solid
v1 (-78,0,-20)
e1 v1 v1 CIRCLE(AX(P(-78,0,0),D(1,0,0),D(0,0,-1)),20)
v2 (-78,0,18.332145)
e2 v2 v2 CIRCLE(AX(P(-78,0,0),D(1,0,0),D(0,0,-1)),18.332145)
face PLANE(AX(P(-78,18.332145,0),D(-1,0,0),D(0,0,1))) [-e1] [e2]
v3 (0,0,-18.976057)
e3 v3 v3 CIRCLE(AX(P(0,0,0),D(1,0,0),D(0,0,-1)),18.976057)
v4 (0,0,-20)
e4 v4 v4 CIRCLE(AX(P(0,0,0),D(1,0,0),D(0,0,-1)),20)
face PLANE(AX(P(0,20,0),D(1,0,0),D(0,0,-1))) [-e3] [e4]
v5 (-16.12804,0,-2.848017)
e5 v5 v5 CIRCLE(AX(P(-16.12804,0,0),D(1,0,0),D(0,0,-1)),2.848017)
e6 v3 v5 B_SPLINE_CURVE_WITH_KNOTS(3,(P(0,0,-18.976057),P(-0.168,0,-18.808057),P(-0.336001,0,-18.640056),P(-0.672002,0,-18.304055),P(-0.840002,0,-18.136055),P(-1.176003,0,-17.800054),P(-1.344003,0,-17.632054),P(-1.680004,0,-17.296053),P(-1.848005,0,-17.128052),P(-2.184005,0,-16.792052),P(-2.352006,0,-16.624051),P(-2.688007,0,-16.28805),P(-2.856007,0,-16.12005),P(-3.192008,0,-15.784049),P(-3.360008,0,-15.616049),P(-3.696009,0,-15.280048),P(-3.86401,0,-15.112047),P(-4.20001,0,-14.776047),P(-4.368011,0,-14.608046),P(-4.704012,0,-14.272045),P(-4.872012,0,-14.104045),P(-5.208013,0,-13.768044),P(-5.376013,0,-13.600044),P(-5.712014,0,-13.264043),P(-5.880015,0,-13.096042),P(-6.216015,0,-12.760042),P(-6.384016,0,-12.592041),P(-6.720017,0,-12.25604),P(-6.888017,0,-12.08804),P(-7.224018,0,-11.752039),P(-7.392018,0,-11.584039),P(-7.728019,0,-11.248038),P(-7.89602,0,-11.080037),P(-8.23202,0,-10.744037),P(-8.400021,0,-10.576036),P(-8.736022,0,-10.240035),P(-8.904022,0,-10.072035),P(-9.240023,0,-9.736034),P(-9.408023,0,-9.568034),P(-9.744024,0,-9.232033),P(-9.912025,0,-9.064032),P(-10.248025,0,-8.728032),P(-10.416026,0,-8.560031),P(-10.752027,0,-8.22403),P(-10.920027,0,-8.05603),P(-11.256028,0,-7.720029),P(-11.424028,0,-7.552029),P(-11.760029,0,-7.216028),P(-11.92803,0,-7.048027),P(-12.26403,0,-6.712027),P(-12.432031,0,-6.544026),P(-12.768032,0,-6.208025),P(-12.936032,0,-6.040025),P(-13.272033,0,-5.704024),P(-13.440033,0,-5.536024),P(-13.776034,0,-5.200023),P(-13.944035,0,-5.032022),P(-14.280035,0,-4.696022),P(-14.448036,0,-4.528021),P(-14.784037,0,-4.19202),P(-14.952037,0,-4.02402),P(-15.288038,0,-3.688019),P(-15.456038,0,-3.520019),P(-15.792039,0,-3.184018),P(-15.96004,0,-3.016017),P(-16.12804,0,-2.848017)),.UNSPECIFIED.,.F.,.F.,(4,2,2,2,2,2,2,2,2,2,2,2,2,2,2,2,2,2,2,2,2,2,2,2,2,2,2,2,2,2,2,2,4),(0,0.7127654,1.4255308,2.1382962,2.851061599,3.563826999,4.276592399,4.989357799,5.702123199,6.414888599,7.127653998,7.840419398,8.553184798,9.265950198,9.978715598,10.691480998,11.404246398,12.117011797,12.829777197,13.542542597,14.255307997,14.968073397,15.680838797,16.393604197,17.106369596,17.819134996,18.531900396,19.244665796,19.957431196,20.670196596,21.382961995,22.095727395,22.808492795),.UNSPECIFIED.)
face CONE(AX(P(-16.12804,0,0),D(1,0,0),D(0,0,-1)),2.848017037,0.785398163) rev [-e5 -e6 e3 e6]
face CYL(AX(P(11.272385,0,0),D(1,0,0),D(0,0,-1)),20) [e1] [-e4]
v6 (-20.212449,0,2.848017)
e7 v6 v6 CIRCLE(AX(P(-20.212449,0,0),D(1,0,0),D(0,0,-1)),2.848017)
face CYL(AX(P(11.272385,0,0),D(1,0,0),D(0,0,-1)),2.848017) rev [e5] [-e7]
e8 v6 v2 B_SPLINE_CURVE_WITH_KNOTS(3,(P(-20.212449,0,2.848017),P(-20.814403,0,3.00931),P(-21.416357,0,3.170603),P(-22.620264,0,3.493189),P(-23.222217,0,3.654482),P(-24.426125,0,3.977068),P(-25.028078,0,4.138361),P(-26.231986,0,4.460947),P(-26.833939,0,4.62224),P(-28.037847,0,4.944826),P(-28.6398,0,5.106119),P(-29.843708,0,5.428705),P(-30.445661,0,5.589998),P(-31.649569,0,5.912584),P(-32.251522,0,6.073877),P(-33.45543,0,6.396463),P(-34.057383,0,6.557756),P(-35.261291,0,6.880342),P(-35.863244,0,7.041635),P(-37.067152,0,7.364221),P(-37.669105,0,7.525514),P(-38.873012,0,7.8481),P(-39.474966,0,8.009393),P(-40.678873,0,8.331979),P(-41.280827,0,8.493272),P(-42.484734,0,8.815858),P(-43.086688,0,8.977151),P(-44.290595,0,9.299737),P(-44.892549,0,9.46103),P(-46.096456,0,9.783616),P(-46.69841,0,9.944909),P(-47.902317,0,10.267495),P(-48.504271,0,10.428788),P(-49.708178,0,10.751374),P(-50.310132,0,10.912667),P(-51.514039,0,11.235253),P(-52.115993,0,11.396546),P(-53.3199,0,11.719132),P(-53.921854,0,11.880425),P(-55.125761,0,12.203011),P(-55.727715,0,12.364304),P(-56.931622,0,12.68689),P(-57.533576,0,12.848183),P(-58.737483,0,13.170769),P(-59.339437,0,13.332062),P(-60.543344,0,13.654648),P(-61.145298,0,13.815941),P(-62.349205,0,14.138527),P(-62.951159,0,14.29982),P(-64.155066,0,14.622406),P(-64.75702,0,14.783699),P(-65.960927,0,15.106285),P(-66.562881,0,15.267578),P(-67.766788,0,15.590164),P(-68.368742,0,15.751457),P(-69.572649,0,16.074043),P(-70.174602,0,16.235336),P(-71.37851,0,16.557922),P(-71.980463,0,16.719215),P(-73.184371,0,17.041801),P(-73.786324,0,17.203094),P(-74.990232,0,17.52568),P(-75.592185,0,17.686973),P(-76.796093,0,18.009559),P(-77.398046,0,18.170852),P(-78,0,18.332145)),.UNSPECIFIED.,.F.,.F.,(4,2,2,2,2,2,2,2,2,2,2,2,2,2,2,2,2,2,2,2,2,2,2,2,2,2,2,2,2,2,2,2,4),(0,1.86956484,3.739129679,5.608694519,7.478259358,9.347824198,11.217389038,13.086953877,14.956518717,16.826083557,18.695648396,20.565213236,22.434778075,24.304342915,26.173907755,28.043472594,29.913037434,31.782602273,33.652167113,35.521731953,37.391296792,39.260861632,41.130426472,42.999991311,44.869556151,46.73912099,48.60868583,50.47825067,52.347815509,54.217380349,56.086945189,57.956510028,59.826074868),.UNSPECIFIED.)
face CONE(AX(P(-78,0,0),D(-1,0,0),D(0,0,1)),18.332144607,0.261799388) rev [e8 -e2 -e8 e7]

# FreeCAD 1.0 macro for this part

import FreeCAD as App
import Part
import Sketcher
from FreeCAD import Vector
Q = App.Units.Quantity


def add_polygon(sketch, points):
    """Adds a closed chain of lines whose ends are joined by coincident constraints."""
    first, n = sketch.GeometryCount, len(points)
    for a, b in zip(points, points[1:] + points[:1]):
        sketch.addGeometry(Part.LineSegment(App.Vector(*a, 0), App.Vector(*b, 0)), False)
    for i in range(n):
        sketch.addConstraint(Sketcher.Constraint("Coincident", first + i, 2, first + (i + 1) % n, 1))

doc = App.newDocument("Part")
body = doc.addObject("PartDesign::Body", "Body")

# Sketch on XY plane
sketch1 = doc.addObject("Sketcher::SketchObject", "Sketch")
body.addObject(sketch1)
sketch1.AttachmentSupport = (doc.XY_Plane, [""])
sketch1.MapMode = "FlatFace"
add_polygon(sketch1, [(0, 20), (-78, 20), (-78, 18.332145), (-20.212449, 2.848017), (-16.12804, 2.848017), (0, 18.976057)])  # lines 0-5
sketch1.addConstraint(Sketcher.Constraint("Horizontal", 0))
sketch1.addConstraint(Sketcher.Constraint("Vertical", 1))
sketch1.addConstraint(Sketcher.Constraint("Horizontal", 3))
sketch1.addConstraint(Sketcher.Constraint("Vertical", 5))
sketch1.addConstraint(Sketcher.Constraint("PointOnObject", 4, 2, -2))
sketch1.addConstraint(Sketcher.Constraint("DistanceX", 0, 2, 0, 1, Q("78 mm")))
sketch1.addConstraint(Sketcher.Constraint("Angle", 2, Q("-15 deg")))
sketch1.addConstraint(Sketcher.Constraint("Angle", 4, Q("45 deg")))
sketch1.addConstraint(Sketcher.Constraint("DistanceY", -1, 1, 0, 2, Q("20 mm")))
sketch1.addConstraint(Sketcher.Constraint("DistanceX", 3, 1, 3, 2, Q("4.084409 mm")))
sketch1.addConstraint(Sketcher.Constraint("DistanceY", 1, 2, 1, 1, Q("1.667855 mm")))
sketch1.addConstraint(Sketcher.Constraint("DistanceY", 5, 1, 5, 2, Q("1.023943 mm")))
revolution = doc.addObject("PartDesign::Revolution", "Revolution")
body.addObject(revolution)
revolution.Profile = sketch1
revolution.ReferenceAxis = (sketch1, ["H_Axis"])
revolution.Angle = 360

doc.recompute()
